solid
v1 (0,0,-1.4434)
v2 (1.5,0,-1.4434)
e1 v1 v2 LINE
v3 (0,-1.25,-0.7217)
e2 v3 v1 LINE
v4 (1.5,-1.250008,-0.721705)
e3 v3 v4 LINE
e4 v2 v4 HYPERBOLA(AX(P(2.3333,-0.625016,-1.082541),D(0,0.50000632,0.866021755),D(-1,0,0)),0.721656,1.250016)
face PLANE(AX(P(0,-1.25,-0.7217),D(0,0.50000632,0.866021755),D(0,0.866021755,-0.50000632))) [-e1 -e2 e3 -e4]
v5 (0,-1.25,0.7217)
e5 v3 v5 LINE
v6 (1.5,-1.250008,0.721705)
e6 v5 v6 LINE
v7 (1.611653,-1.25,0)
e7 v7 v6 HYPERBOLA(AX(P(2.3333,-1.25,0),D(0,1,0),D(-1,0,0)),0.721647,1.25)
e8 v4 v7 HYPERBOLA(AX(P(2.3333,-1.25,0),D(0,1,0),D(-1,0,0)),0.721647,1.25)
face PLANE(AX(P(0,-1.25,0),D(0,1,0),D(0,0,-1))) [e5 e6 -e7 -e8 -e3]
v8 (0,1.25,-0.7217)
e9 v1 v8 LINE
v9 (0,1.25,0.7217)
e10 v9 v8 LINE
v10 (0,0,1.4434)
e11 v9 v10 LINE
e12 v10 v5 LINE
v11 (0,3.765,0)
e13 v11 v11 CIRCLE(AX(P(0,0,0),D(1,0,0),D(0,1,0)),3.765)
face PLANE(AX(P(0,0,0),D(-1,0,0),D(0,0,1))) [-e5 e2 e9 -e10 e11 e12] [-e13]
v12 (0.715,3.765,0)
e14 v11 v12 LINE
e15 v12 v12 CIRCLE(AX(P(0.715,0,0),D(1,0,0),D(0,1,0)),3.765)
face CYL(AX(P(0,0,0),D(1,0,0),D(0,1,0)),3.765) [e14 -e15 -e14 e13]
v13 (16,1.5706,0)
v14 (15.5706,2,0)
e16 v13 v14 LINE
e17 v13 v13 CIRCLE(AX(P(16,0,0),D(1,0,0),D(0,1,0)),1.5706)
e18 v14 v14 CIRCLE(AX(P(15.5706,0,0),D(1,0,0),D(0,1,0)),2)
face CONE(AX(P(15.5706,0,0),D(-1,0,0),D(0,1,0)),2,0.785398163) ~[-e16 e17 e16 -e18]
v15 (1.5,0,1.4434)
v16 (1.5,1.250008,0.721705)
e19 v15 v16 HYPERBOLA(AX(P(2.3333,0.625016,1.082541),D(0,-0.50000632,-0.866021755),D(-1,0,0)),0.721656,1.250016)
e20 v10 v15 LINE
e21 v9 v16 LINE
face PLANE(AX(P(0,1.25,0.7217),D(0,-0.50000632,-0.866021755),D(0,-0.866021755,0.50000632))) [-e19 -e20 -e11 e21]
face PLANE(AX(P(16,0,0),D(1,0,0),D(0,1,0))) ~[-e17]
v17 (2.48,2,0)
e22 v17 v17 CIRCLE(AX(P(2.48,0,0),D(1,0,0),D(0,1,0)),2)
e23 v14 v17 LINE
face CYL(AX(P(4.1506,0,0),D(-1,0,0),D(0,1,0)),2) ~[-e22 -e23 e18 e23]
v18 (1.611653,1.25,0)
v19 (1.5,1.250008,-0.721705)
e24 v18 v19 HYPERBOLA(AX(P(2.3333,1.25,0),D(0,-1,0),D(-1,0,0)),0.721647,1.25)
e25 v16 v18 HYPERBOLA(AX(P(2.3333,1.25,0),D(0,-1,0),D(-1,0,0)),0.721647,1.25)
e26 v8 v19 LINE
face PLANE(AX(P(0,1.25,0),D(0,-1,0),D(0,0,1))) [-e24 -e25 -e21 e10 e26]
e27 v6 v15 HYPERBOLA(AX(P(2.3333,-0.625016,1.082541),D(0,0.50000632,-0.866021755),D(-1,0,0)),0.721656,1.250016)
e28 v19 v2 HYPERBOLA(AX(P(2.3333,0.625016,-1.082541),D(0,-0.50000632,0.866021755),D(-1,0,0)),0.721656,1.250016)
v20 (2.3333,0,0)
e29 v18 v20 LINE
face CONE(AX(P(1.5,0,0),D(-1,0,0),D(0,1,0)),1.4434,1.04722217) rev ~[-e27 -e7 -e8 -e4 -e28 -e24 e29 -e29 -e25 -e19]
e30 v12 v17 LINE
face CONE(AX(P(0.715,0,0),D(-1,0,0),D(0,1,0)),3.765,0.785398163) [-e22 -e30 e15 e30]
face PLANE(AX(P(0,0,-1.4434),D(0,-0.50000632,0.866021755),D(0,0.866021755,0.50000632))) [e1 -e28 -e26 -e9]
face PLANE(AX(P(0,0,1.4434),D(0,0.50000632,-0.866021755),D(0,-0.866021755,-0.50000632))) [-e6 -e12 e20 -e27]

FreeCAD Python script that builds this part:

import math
import FreeCAD as App
import Part
import Sketcher
Q = App.Units.Quantity


def edges_at(feature, points):
    """Names of the edges that pass closest to the given points."""
    edges = feature.Shape.Edges
    near = lambda p: min(range(len(edges)), key=lambda i: edges[i].distToShape(Part.Vertex(*p))[0])
    return sorted({f"Edge{near(p) + 1}" for p in points})


def add_polygon(sketch, points):
    """Adds a closed chain of lines whose ends are joined by coincident constraints."""
    first, n = sketch.GeometryCount, len(points)
    for a, b in zip(points, points[1:] + points[:1]):
        sketch.addGeometry(Part.LineSegment(App.Vector(*a, 0), App.Vector(*b, 0)), False)
    for i in range(n):
        sketch.addConstraint(Sketcher.Constraint("Coincident", first + i, 2, first + (i + 1) % n, 1))

doc = App.newDocument("Part")
params = doc.addObject("Spreadsheet::Sheet", "Params")
for row, (alias, value) in enumerate([
    ("sketch1_width", "1.5 mm"),
    ("sketch1_height", "2 mm"),
    ("revolution_angle", "360 deg"),
    ("chamfer_size", "0.4294 mm"),
    ("chamfer_size2", "0.4294 mm"),
], start=1):
    params.set(f"A{row}", alias)
    params.set(f"B{row}", "=" + value)
    params.setAlias(f"B{row}", alias)

body = doc.addObject("PartDesign::Body", "Body")

sketch1 = body.newObject("Sketcher::SketchObject", "Sketch")
sketch1.AttachmentSupport = (doc.getObject("XY_Plane"), [""])
sketch1.MapMode = "FlatFace"
add_polygon(sketch1, [(2.3, 0), (16, 0), (16, 2), (2.5, 2), (0.7, 3.8), (0, 3.8), (0, 1.4), (1.5, 1.4)])
sketch1.addConstraint(Sketcher.Constraint("Horizontal", 0))
sketch1.addConstraint(Sketcher.Constraint("Vertical", 1))
sketch1.addConstraint(Sketcher.Constraint("Horizontal", 2))
sketch1.addConstraint(Sketcher.Constraint("Horizontal", 4))
sketch1.addConstraint(Sketcher.Constraint("Vertical", 5))
sketch1.addConstraint(Sketcher.Constraint("Horizontal", 6))
sketch1.addConstraint(Sketcher.Constraint("PointOnObject", 0, 2, -1))
sketch1.addConstraint(Sketcher.Constraint("PointOnObject", 4, 2, -2))
sketch1.addConstraint(Sketcher.Constraint("DistanceX", 6, 1, 6, 2, 1.5))
sketch1.addConstraint(Sketcher.Constraint("DistanceX", -1, 1, 0, 2, 16.0))
sketch1.addConstraint(Sketcher.Constraint("DistanceY", 1, 1, 1, 2, 2.0))
sketch1.addConstraint(Sketcher.Constraint("DistanceX", -1, 1, 2, 2, 2.48))
sketch1.addConstraint(Sketcher.Constraint("Angle", 3, Q("135 deg")))
sketch1.addConstraint(Sketcher.Constraint("DistanceX", 4, 2, 4, 1, 0.715))
sketch1.addConstraint(Sketcher.Constraint("DistanceX", 0, 1, 0, 2, 13.6667))
sketch1.addConstraint(Sketcher.Constraint("DistanceY", 5, 2, 5, 1, 2.3216))
sketch1.setExpression("Constraints[16]", "Params.sketch1_width")
sketch1.setExpression("Constraints[18]", "Params.sketch1_height")
revolution = body.newObject("PartDesign::Revolution", "Revolution")
revolution.Profile = sketch1
revolution.ReferenceAxis = (sketch1, ["H_Axis"])
revolution.setExpression("Angle", "Params.revolution_angle")

sketch2 = body.newObject("Sketcher::SketchObject", "Sketch001")
sketch2.AttachmentSupport = (doc.getObject("YZ_Plane"), [""])
sketch2.MapMode = "FlatFace"
sketch2.addGeometry(Part.LineSegment(App.Vector(1.2, 0.7, 0), App.Vector(0, 1.4, 0)), False)
sketch2.addGeometry(Part.ArcOfCircle(Part.Circle(App.Vector(0, 0, 0), App.Vector(0, 0, 1), 1.4), math.radians(30), math.radians(90)), False)
sketch2.addGeometry(Part.ArcOfCircle(Part.Circle(App.Vector(0, 0, 0), App.Vector(0, 0, 1), 1.4), math.radians(90), math.radians(150)), False)
sketch2.addGeometry(Part.LineSegment(App.Vector(0, 1.4, 0), App.Vector(-1.2, 0.7, 0)), False)
sketch2.addGeometry(Part.ArcOfCircle(Part.Circle(App.Vector(0, 0, 0), App.Vector(0, 0, 1), 1.4), math.radians(-30), math.radians(30)), False)
sketch2.addGeometry(Part.LineSegment(App.Vector(1.2, 0.7, 0), App.Vector(1.2, -0.7, 0)), False)
sketch2.addGeometry(Part.LineSegment(App.Vector(-1.2, 0.7, 0), App.Vector(-1.2, -0.7, 0)), False)
sketch2.addGeometry(Part.ArcOfCircle(Part.Circle(App.Vector(0, 0, 0), App.Vector(0, 0, 1), 1.4), math.radians(150), math.radians(210)), False)
sketch2.addGeometry(Part.LineSegment(App.Vector(-1.2, -0.7, 0), App.Vector(0, -1.4, 0)), False)
sketch2.addGeometry(Part.ArcOfCircle(Part.Circle(App.Vector(0, 0, 0), App.Vector(0, 0, 1), 1.4), math.radians(-150), math.radians(-90)), False)
sketch2.addGeometry(Part.ArcOfCircle(Part.Circle(App.Vector(0, 0, 0), App.Vector(0, 0, 1), 1.4), math.radians(-90), math.radians(-30)), False)
sketch2.addGeometry(Part.LineSegment(App.Vector(0, -1.4, 0), App.Vector(1.2, -0.7, 0)), False)
sketch2.addConstraint(Sketcher.Constraint("Coincident", 0, 1, 1, 1))
sketch2.addConstraint(Sketcher.Constraint("Coincident", 1, 2, 0, 2))
sketch2.addConstraint(Sketcher.Constraint("Coincident", 2, 1, 3, 1))
sketch2.addConstraint(Sketcher.Constraint("Coincident", 3, 2, 2, 2))
sketch2.addConstraint(Sketcher.Constraint("Coincident", 4, 1, 5, 2))
sketch2.addConstraint(Sketcher.Constraint("Coincident", 5, 1, 4, 2))
sketch2.addConstraint(Sketcher.Constraint("Coincident", 6, 1, 7, 1))
sketch2.addConstraint(Sketcher.Constraint("Coincident", 7, 2, 6, 2))
sketch2.addConstraint(Sketcher.Constraint("Coincident", 8, 1, 9, 1))
sketch2.addConstraint(Sketcher.Constraint("Coincident", 9, 2, 8, 2))
sketch2.addConstraint(Sketcher.Constraint("Coincident", 10, 1, 11, 1))
sketch2.addConstraint(Sketcher.Constraint("Coincident", 11, 2, 10, 2))
sketch2.addConstraint(Sketcher.Constraint("Vertical", 5))
sketch2.addConstraint(Sketcher.Constraint("Vertical", 6))
sketch2.addConstraint(Sketcher.Constraint("Coincident", 1, 3, -1, 1))
sketch2.addConstraint(Sketcher.Constraint("Coincident", 2, 3, -1, 1))
sketch2.addConstraint(Sketcher.Constraint("Coincident", 4, 3, -1, 1))
sketch2.addConstraint(Sketcher.Constraint("Coincident", 7, 3, -1, 1))
sketch2.addConstraint(Sketcher.Constraint("Coincident", 9, 3, -1, 1))
sketch2.addConstraint(Sketcher.Constraint("Coincident", 10, 3, -1, 1))
sketch2.addConstraint(Sketcher.Constraint("Coincident", 2, 1, 1, 2))
sketch2.addConstraint(Sketcher.Constraint("Coincident", 5, 1, 0, 1))
sketch2.addConstraint(Sketcher.Constraint("Coincident", 6, 1, 3, 2))
sketch2.addConstraint(Sketcher.Constraint("Coincident", 8, 1, 7, 2))
sketch2.addConstraint(Sketcher.Constraint("Coincident", 10, 1, 9, 2))
sketch2.addConstraint(Sketcher.Constraint("PointOnObject", 1, 2, -2))
sketch2.addConstraint(Sketcher.Constraint("PointOnObject", 9, 2, -2))
sketch2.addConstraint(Sketcher.Constraint("Parallel", 0, 8))
sketch2.addConstraint(Sketcher.Constraint("Parallel", 3, 11))
sketch2.addConstraint(Sketcher.Constraint("Angle", 0, Q("149.9996 deg")))
sketch2.addConstraint(Sketcher.Constraint("Radius", 1, 1.4434))
pad1 = body.newObject("PartDesign::Pad", "Pad")
pad1.Profile = sketch2
pad1.Type = "UpToFirst"
doc.recompute()

chamfer = body.newObject("PartDesign::Chamfer", "Chamfer")
chamfer.Base = (pad1, edges_at(pad1, [(16, -2, 0)]))
chamfer.ChamferType = "Two distances"
chamfer.setExpression("Size", "Params.chamfer_size")
chamfer.setExpression("Size2", "Params.chamfer_size2")

doc.recompute()
